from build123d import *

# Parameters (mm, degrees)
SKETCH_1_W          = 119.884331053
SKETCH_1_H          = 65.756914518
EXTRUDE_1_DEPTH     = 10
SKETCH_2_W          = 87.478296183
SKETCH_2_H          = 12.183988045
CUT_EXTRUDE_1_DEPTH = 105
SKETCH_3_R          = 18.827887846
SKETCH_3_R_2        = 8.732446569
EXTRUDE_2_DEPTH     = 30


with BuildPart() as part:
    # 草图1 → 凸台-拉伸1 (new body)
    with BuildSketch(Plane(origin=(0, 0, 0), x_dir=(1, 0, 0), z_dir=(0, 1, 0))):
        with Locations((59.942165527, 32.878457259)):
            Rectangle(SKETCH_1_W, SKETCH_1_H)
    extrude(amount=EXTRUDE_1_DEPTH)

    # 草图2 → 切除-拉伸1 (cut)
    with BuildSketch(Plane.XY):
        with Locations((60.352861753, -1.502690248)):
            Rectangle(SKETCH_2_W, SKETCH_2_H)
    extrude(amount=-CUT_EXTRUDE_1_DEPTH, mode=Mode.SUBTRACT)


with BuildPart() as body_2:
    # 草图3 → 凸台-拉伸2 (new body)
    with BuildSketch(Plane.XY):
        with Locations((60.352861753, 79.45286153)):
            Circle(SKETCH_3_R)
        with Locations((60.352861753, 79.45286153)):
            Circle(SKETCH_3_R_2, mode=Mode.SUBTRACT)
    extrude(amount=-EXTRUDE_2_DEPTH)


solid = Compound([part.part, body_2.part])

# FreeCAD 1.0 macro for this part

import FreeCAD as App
import Part
import Sketcher
from FreeCAD import Vector

doc = App.newDocument("Part")
body = doc.addObject("PartDesign::Body", "Body")

sketch1 = body.newObject("Sketcher::SketchObject", "Sketch")
sketch1.AttachmentSupport = (doc.getObject("XZ_Plane"), [""])
sketch1.MapMode = "FlatFace"
sketch1.addGeometry(Part.LineSegment(Vector(0, -66, 0), Vector(0, 0, 0)), False)
sketch1.addGeometry(Part.LineSegment(Vector(0, 0, 0), Vector(120, 0, 0)), False)
sketch1.addGeometry(Part.LineSegment(Vector(120, 0, 0), Vector(120, -66, 0)), False)
sketch1.addGeometry(Part.LineSegment(Vector(120, -66, 0), Vector(0, -66, 0)), False)
sketch1.addConstraint(Sketcher.Constraint("Coincident", 0, 2, 1, 1))
sketch1.addConstraint(Sketcher.Constraint("Coincident", 1, 2, 2, 1))
sketch1.addConstraint(Sketcher.Constraint("Coincident", 2, 2, 3, 1))
sketch1.addConstraint(Sketcher.Constraint("Coincident", 3, 2, 0, 1))
sketch1.addConstraint(Sketcher.Constraint("Vertical", 0))
sketch1.addConstraint(Sketcher.Constraint("Horizontal", 1))
sketch1.addConstraint(Sketcher.Constraint("Vertical", 2))
sketch1.addConstraint(Sketcher.Constraint("Horizontal", 3))
sketch1.addConstraint(Sketcher.Constraint("Coincident", 0, 2, -1, 1))
sketch1.addConstraint(Sketcher.Constraint("DistanceX", 1, 1, 1, 2, 119.884331))
sketch1.addConstraint(Sketcher.Constraint("DistanceY", 0, 1, 0, 2, 65.756915))
pad1 = body.newObject("PartDesign::Pad", "Pad")
pad1.Profile = sketch1
pad1.Length = 10
pad1.Reversed = True

sketch2 = body.newObject("Sketcher::SketchObject", "Sketch001")
sketch2.AttachmentSupport = (doc.getObject("XY_Plane"), [""])
sketch2.MapMode = "FlatFace"
sketch2.addGeometry(Part.LineSegment(Vector(17, 5, 0), Vector(17, -8, 0)), False)
sketch2.addGeometry(Part.LineSegment(Vector(17, -8, 0), Vector(104, -8, 0)), False)
sketch2.addGeometry(Part.LineSegment(Vector(104, -8, 0), Vector(104, 5, 0)), False)
sketch2.addGeometry(Part.LineSegment(Vector(104, 5, 0), Vector(17, 5, 0)), False)
sketch2.addConstraint(Sketcher.Constraint("Coincident", 0, 2, 1, 1))
sketch2.addConstraint(Sketcher.Constraint("Coincident", 1, 2, 2, 1))
sketch2.addConstraint(Sketcher.Constraint("Coincident", 2, 2, 3, 1))
sketch2.addConstraint(Sketcher.Constraint("Coincident", 3, 2, 0, 1))
sketch2.addConstraint(Sketcher.Constraint("Vertical", 0))
sketch2.addConstraint(Sketcher.Constraint("Horizontal", 1))
sketch2.addConstraint(Sketcher.Constraint("Vertical", 2))
sketch2.addConstraint(Sketcher.Constraint("Horizontal", 3))
sketch2.addConstraint(Sketcher.Constraint("DistanceY", 0, 2, 0, 1, 12.183988))
sketch2.addConstraint(Sketcher.Constraint("DistanceX", 1, 1, 1, 2, 87.478296))
sketch2.addConstraint(Sketcher.Constraint("DistanceX", -1, 1, 1, 2, 104.09201))
sketch2.addConstraint(Sketcher.Constraint("DistanceY", 0, 2, -1, 1, 7.594684))
pocket1 = body.newObject("PartDesign::Pocket", "Pocket")
pocket1.Profile = sketch2
pocket1.Length = 105
body2 = doc.addObject("PartDesign::Body", "Body001")

sketch3 = body2.newObject("Sketcher::SketchObject", "Sketch002")
sketch3.AttachmentSupport = (doc.getObject("XY_Plane001"), [""])
sketch3.MapMode = "FlatFace"
sketch3.addGeometry(Part.Circle(Vector(60, 79, 0), Vector(0, 0, 1), 19), False)
sketch3.addGeometry(Part.Circle(Vector(60, 79, 0), Vector(0, 0, 1), 9), False)
sketch3.addConstraint(Sketcher.Constraint("Coincident", 1, 3, 0, 3))
sketch3.addConstraint(Sketcher.Constraint("Diameter", 0, 37.655776))
sketch3.addConstraint(Sketcher.Constraint("Diameter", 1, 17.464893))
sketch3.addConstraint(Sketcher.Constraint("DistanceX", -1, 1, 0, 3, 60.352862))
sketch3.addConstraint(Sketcher.Constraint("DistanceY", -1, 1, 0, 3, 79.452862))
pad2 = body2.newObject("PartDesign::Pad", "Pad001")
pad2.Profile = sketch3
pad2.Length = 30
pad2.Reversed = True

doc.recompute()
